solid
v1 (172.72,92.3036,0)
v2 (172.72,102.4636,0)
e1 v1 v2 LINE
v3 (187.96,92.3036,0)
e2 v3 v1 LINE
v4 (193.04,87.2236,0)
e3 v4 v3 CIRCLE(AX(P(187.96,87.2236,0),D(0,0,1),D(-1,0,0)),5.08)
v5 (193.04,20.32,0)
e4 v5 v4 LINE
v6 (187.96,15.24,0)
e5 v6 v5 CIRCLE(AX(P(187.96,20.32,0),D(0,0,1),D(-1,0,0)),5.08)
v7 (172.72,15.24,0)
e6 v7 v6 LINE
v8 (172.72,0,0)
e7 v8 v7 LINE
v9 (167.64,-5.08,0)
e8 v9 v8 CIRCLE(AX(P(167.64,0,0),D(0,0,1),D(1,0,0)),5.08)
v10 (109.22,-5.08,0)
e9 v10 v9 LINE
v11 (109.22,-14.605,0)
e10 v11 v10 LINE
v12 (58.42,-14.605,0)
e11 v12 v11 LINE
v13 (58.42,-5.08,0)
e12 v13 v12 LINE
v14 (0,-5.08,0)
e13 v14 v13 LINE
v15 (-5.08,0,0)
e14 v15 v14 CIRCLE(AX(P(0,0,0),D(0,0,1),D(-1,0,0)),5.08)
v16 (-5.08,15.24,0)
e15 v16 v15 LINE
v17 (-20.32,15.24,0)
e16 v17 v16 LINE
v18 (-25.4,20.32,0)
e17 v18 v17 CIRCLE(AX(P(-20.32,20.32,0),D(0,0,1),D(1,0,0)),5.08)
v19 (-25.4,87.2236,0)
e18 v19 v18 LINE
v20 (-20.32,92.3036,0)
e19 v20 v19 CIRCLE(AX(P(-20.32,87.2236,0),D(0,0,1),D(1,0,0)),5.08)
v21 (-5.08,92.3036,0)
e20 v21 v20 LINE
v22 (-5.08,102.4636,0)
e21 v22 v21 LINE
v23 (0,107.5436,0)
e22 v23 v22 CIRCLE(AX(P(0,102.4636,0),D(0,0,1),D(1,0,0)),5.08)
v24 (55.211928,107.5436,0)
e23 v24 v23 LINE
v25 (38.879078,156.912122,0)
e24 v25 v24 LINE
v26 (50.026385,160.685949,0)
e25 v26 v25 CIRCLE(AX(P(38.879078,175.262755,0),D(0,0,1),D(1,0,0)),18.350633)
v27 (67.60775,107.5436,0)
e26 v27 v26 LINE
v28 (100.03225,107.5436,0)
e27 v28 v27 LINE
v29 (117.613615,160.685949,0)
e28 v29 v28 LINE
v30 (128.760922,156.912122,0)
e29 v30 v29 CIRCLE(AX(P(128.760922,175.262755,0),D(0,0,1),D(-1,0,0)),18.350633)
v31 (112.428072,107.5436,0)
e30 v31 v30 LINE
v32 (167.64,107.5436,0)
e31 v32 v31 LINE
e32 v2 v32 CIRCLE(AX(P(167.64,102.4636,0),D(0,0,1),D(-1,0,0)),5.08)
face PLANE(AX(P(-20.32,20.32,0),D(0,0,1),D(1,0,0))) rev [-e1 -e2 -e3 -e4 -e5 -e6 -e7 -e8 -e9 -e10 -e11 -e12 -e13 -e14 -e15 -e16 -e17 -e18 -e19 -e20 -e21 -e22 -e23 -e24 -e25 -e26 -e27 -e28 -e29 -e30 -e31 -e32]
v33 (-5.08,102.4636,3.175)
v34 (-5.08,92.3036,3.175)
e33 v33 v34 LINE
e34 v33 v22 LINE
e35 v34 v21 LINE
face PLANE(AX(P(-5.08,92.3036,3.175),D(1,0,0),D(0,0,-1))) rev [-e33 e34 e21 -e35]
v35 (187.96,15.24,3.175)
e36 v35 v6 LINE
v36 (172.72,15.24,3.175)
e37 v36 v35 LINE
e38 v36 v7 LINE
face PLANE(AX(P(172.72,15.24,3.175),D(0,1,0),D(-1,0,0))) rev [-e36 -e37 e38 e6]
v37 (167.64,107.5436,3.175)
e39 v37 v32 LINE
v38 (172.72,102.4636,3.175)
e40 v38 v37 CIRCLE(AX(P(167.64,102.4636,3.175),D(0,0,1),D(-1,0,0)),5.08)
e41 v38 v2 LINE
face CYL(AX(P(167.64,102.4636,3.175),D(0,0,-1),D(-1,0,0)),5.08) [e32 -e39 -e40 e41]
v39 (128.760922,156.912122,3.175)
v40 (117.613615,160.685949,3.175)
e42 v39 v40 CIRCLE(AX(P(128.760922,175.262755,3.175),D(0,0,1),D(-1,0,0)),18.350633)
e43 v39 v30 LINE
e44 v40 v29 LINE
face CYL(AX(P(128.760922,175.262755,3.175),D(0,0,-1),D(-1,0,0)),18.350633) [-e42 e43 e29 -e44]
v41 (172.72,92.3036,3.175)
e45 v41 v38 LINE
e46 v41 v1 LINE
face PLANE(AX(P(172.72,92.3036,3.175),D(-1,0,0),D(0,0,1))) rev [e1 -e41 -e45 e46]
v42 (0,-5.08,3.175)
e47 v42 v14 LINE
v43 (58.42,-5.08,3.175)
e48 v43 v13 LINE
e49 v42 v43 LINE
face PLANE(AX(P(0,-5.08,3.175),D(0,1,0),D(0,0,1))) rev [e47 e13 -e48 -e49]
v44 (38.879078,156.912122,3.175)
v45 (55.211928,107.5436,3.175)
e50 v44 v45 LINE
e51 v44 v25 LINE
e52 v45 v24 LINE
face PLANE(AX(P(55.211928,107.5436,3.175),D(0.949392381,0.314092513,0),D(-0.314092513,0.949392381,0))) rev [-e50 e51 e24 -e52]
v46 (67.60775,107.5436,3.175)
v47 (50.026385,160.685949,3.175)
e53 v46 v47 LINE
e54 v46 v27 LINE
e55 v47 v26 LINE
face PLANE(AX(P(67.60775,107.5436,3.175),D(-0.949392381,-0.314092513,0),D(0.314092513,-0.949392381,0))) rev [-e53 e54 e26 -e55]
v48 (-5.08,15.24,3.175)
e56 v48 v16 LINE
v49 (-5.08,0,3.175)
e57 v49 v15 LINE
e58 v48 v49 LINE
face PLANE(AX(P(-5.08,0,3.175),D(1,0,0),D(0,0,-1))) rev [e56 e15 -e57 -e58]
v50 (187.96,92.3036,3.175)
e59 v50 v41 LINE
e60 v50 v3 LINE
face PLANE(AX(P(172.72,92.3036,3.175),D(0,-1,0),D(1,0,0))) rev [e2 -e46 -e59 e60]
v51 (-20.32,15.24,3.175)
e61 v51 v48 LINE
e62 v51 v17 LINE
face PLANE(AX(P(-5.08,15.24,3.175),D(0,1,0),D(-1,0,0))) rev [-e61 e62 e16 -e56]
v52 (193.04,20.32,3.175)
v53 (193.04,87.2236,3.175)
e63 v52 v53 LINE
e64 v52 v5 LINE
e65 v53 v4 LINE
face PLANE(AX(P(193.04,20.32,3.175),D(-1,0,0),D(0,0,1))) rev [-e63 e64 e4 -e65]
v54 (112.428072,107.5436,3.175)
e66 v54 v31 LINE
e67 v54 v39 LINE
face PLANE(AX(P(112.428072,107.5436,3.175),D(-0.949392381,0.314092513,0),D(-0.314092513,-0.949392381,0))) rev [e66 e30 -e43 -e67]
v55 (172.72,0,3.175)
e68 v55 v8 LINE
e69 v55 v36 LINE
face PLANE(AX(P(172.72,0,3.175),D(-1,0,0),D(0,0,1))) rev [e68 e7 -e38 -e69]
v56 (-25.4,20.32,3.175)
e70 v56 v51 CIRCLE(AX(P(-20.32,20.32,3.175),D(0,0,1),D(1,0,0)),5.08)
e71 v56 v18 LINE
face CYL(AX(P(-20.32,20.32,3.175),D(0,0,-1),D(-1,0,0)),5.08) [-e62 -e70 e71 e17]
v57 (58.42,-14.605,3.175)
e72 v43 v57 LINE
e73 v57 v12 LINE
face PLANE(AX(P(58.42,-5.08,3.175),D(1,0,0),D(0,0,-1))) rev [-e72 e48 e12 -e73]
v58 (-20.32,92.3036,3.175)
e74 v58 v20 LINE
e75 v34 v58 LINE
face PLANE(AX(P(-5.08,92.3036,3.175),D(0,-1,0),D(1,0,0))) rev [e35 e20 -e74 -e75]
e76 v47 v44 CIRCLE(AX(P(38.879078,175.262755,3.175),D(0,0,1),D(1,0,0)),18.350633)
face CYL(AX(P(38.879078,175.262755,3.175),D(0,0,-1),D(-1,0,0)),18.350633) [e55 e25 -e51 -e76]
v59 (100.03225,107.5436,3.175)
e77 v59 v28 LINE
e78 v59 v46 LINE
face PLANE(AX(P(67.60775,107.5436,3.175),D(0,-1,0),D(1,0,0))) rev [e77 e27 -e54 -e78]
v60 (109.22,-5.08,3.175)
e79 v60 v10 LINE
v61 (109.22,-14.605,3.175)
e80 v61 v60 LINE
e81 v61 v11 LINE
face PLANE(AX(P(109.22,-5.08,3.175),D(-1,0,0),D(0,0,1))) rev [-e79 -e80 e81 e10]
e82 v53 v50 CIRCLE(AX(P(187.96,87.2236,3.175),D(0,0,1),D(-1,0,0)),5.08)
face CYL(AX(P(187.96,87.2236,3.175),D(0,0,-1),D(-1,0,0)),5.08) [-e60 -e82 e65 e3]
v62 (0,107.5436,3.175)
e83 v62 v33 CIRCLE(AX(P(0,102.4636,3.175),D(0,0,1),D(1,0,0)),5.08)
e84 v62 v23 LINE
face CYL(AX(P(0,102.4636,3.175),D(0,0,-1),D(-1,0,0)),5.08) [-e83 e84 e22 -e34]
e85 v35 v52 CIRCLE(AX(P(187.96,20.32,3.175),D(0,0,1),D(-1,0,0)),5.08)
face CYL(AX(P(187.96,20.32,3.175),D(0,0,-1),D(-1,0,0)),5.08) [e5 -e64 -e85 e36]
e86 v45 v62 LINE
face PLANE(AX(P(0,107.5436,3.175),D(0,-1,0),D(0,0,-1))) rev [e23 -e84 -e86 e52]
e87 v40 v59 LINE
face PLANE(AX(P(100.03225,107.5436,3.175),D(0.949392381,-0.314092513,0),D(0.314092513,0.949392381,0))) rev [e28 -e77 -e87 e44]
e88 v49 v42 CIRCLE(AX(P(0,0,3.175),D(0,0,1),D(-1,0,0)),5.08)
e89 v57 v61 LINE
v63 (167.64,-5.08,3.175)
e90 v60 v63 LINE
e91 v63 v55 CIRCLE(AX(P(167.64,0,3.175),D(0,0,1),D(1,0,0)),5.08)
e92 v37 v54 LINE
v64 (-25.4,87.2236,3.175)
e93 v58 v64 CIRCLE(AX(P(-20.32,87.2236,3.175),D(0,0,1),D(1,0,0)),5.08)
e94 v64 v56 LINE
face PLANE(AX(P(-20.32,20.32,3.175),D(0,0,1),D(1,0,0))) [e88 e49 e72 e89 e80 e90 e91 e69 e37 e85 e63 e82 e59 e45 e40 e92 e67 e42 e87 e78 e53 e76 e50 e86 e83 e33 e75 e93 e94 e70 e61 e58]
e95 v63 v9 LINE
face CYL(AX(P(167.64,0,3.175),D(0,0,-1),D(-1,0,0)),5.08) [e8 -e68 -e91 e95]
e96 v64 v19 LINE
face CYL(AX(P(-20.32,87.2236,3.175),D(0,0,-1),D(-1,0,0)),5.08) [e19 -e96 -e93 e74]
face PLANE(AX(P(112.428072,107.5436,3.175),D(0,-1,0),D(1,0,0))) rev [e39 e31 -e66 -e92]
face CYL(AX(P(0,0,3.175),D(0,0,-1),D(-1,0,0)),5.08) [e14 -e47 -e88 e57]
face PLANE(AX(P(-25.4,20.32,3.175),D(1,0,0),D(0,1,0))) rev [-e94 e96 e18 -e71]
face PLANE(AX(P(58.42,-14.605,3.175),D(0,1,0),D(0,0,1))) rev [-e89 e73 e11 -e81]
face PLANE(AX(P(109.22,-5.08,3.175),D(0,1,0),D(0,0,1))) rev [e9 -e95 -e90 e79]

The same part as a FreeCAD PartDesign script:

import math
import FreeCAD as App
import Part
import Sketcher
Q = App.Units.Quantity

doc = App.newDocument("Part")
body = doc.addObject("PartDesign::Body", "Body")

# Sketch on XY plane
sketch1 = body.newObject("Sketcher::SketchObject", "Sketch")
sketch1.AttachmentSupport = (doc.getObject("XY_Plane"), [""])
sketch1.MapMode = "FlatFace"
sketch1.addGeometry(Part.LineSegment(App.Vector(0, -5, 0), App.Vector(58, -5, 0)), False)
sketch1.addGeometry(Part.LineSegment(App.Vector(58, -5, 0), App.Vector(58, -15, 0)), False)
sketch1.addGeometry(Part.LineSegment(App.Vector(58, -15, 0), App.Vector(109, -15, 0)), False)
sketch1.addGeometry(Part.LineSegment(App.Vector(109, -15, 0), App.Vector(109, -5, 0)), False)
sketch1.addGeometry(Part.LineSegment(App.Vector(109, -5, 0), App.Vector(168, -5, 0)), False)
sketch1.addGeometry(Part.ArcOfCircle(Part.Circle(App.Vector(168, 0, 0), App.Vector(0, 0, 1), 5), math.radians(-90), math.radians(0)), False)
sketch1.addGeometry(Part.LineSegment(App.Vector(173, 0, 0), App.Vector(173, 15, 0)), False)
sketch1.addGeometry(Part.LineSegment(App.Vector(173, 15, 0), App.Vector(188, 15, 0)), False)
sketch1.addGeometry(Part.ArcOfCircle(Part.Circle(App.Vector(188, 20, 0), App.Vector(0, 0, 1), 5), math.radians(-90), math.radians(0)), False)
sketch1.addGeometry(Part.LineSegment(App.Vector(193, 20, 0), App.Vector(193, 87, 0)), False)
sketch1.addGeometry(Part.ArcOfCircle(Part.Circle(App.Vector(188, 87, 0), App.Vector(0, 0, 1), 5), math.radians(0), math.radians(90)), False)
sketch1.addGeometry(Part.LineSegment(App.Vector(188, 92, 0), App.Vector(173, 92, 0)), False)
sketch1.addGeometry(Part.LineSegment(App.Vector(173, 92, 0), App.Vector(173, 102, 0)), False)
sketch1.addGeometry(Part.ArcOfCircle(Part.Circle(App.Vector(168, 102, 0), App.Vector(0, 0, 1), 5), math.radians(0), math.radians(90)), False)
sketch1.addGeometry(Part.LineSegment(App.Vector(168, 108, 0), App.Vector(112, 108, 0)), False)
sketch1.addGeometry(Part.LineSegment(App.Vector(112, 108, 0), App.Vector(129, 157, 0)), False)
sketch1.addGeometry(Part.ArcOfCircle(Part.Circle(App.Vector(129, 175, 0), App.Vector(0, 0, 1), 18), math.radians(-90), math.radians(233)), False)
sketch1.addGeometry(Part.LineSegment(App.Vector(118, 161, 0), App.Vector(100, 108, 0)), False)
sketch1.addGeometry(Part.LineSegment(App.Vector(100, 108, 0), App.Vector(68, 108, 0)), False)
sketch1.addGeometry(Part.LineSegment(App.Vector(68, 108, 0), App.Vector(50, 161, 0)), False)
sketch1.addGeometry(Part.ArcOfCircle(Part.Circle(App.Vector(39, 175, 0), App.Vector(0, 0, 1), 18), math.radians(-53), math.radians(270)), False)
sketch1.addGeometry(Part.LineSegment(App.Vector(39, 157, 0), App.Vector(55, 108, 0)), False)
sketch1.addGeometry(Part.LineSegment(App.Vector(55, 108, 0), App.Vector(0, 108, 0)), False)
sketch1.addGeometry(Part.ArcOfCircle(Part.Circle(App.Vector(0, 102, 0), App.Vector(0, 0, 1), 5), math.radians(90), math.radians(180)), False)
sketch1.addGeometry(Part.LineSegment(App.Vector(-5, 102, 0), App.Vector(-5, 92, 0)), False)
sketch1.addGeometry(Part.LineSegment(App.Vector(-5, 92, 0), App.Vector(-20, 92, 0)), False)
sketch1.addGeometry(Part.ArcOfCircle(Part.Circle(App.Vector(-20, 87, 0), App.Vector(0, 0, 1), 5), math.radians(90), math.radians(180)), False)
sketch1.addGeometry(Part.LineSegment(App.Vector(-25, 87, 0), App.Vector(-25, 20, 0)), False)
sketch1.addGeometry(Part.ArcOfCircle(Part.Circle(App.Vector(-20, 20, 0), App.Vector(0, 0, 1), 5), math.radians(-180), math.radians(-90)), False)
sketch1.addGeometry(Part.LineSegment(App.Vector(-20, 15, 0), App.Vector(-5, 15, 0)), False)
sketch1.addGeometry(Part.LineSegment(App.Vector(-5, 15, 0), App.Vector(-5, 0, 0)), False)
sketch1.addGeometry(Part.ArcOfCircle(Part.Circle(App.Vector(0, 0, 0), App.Vector(0, 0, 1), 5), math.radians(-180), math.radians(-90)), False)
sketch1.addConstraint(Sketcher.Constraint("Coincident", 0, 2, 1, 1))
sketch1.addConstraint(Sketcher.Constraint("Coincident", 1, 2, 2, 1))
sketch1.addConstraint(Sketcher.Constraint("Coincident", 2, 2, 3, 1))
sketch1.addConstraint(Sketcher.Constraint("Coincident", 3, 2, 4, 1))
sketch1.addConstraint(Sketcher.Constraint("Tangent", 4, 2, 5, 1))
sketch1.addConstraint(Sketcher.Constraint("Tangent", 5, 2, 6, 1))
sketch1.addConstraint(Sketcher.Constraint("Coincident", 6, 2, 7, 1))
sketch1.addConstraint(Sketcher.Constraint("Tangent", 7, 2, 8, 1))
sketch1.addConstraint(Sketcher.Constraint("Tangent", 8, 2, 9, 1))
sketch1.addConstraint(Sketcher.Constraint("Tangent", 9, 2, 10, 1))
sketch1.addConstraint(Sketcher.Constraint("Tangent", 10, 2, 11, 1))
sketch1.addConstraint(Sketcher.Constraint("Coincident", 11, 2, 12, 1))
sketch1.addConstraint(Sketcher.Constraint("Tangent", 12, 2, 13, 1))
sketch1.addConstraint(Sketcher.Constraint("Tangent", 13, 2, 14, 1))
sketch1.addConstraint(Sketcher.Constraint("Coincident", 14, 2, 15, 1))
sketch1.addConstraint(Sketcher.Constraint("Coincident", 15, 2, 16, 1))
sketch1.addConstraint(Sketcher.Constraint("Coincident", 16, 2, 17, 1))
sketch1.addConstraint(Sketcher.Constraint("Coincident", 17, 2, 18, 1))
sketch1.addConstraint(Sketcher.Constraint("Coincident", 18, 2, 19, 1))
sketch1.addConstraint(Sketcher.Constraint("Coincident", 19, 2, 20, 1))
sketch1.addConstraint(Sketcher.Constraint("Coincident", 20, 2, 21, 1))
sketch1.addConstraint(Sketcher.Constraint("Coincident", 21, 2, 22, 1))
sketch1.addConstraint(Sketcher.Constraint("Tangent", 22, 2, 23, 1))
sketch1.addConstraint(Sketcher.Constraint("Tangent", 23, 2, 24, 1))
sketch1.addConstraint(Sketcher.Constraint("Coincident", 24, 2, 25, 1))
sketch1.addConstraint(Sketcher.Constraint("Tangent", 25, 2, 26, 1))
sketch1.addConstraint(Sketcher.Constraint("Tangent", 26, 2, 27, 1))
sketch1.addConstraint(Sketcher.Constraint("Tangent", 27, 2, 28, 1))
sketch1.addConstraint(Sketcher.Constraint("Tangent", 28, 2, 29, 1))
sketch1.addConstraint(Sketcher.Constraint("Coincident", 29, 2, 30, 1))
sketch1.addConstraint(Sketcher.Constraint("Tangent", 30, 2, 31, 1))
sketch1.addConstraint(Sketcher.Constraint("Tangent", 31, 2, 0, 1))
sketch1.addConstraint(Sketcher.Constraint("Horizontal", 0))
sketch1.addConstraint(Sketcher.Constraint("Vertical", 1))
sketch1.addConstraint(Sketcher.Constraint("Horizontal", 2))
sketch1.addConstraint(Sketcher.Constraint("Vertical", 3))
sketch1.addConstraint(Sketcher.Constraint("Horizontal", 4))
sketch1.addConstraint(Sketcher.Constraint("Vertical", 6))
sketch1.addConstraint(Sketcher.Constraint("Horizontal", 7))
sketch1.addConstraint(Sketcher.Constraint("Vertical", 9))
sketch1.addConstraint(Sketcher.Constraint("Horizontal", 11))
sketch1.addConstraint(Sketcher.Constraint("Vertical", 12))
sketch1.addConstraint(Sketcher.Constraint("Horizontal", 14))
sketch1.addConstraint(Sketcher.Constraint("Horizontal", 18))
sketch1.addConstraint(Sketcher.Constraint("Horizontal", 22))
sketch1.addConstraint(Sketcher.Constraint("Vertical", 24))
sketch1.addConstraint(Sketcher.Constraint("Horizontal", 25))
sketch1.addConstraint(Sketcher.Constraint("Vertical", 27))
sketch1.addConstraint(Sketcher.Constraint("Horizontal", 29))
sketch1.addConstraint(Sketcher.Constraint("Vertical", 30))
sketch1.addConstraint(Sketcher.Constraint("Coincident", 31, 3, -1, 1))
sketch1.addConstraint(Sketcher.Constraint("Equal", 5, 8))
sketch1.addConstraint(Sketcher.Constraint("Equal", 8, 10))
sketch1.addConstraint(Sketcher.Constraint("Equal", 10, 13))
sketch1.addConstraint(Sketcher.Constraint("Equal", 16, 20))
sketch1.addConstraint(Sketcher.Constraint("Equal", 13, 23))
sketch1.addConstraint(Sketcher.Constraint("Equal", 23, 26))
sketch1.addConstraint(Sketcher.Constraint("Equal", 26, 28))
sketch1.addConstraint(Sketcher.Constraint("Equal", 28, 31))
sketch1.addConstraint(Sketcher.Constraint("PointOnObject", 5, 3, -1))
sketch1.addConstraint(Sketcher.Constraint("PointOnObject", 23, 3, -2))
sketch1.addConstraint(Sketcher.Constraint("Parallel", 15, 17))
sketch1.addConstraint(Sketcher.Constraint("Parallel", 19, 21))
sketch1.addConstraint(Sketcher.Constraint("Horizontal", 16, 3, 20, 3))
sketch1.addConstraint(Sketcher.Constraint("Horizontal", 13, 3, 23, 3))
sketch1.addConstraint(Sketcher.Constraint("Horizontal", 10, 3, 26, 3))
sketch1.addConstraint(Sketcher.Constraint("Horizontal", 8, 3, 28, 3))
sketch1.addConstraint(Sketcher.Constraint("Horizontal", 14, 2, 17, 2))
sketch1.addConstraint(Sketcher.Constraint("Horizontal", 16, 2, 19, 2))
sketch1.addConstraint(Sketcher.Constraint("Vertical", 5, 3, 13, 3))
sketch1.addConstraint(Sketcher.Constraint("Vertical", 16, 3, 15, 2))
sketch1.addConstraint(Sketcher.Constraint("Equal", 0, 4))
sketch1.addConstraint(Sketcher.Constraint("Equal", 14, 22))
sketch1.addConstraint(Sketcher.Constraint("Equal", 11, 25))
sketch1.addConstraint(Sketcher.Constraint("Equal", 29, 6))
sketch1.addConstraint(Sketcher.Constraint("Equal", 17, 19))
sketch1.addConstraint(Sketcher.Constraint("Radius", 5, Q("0.2 in")))
sketch1.addConstraint(Sketcher.Constraint("DistanceX", 2, 1, 2, 2, Q("2 in")))
sketch1.addConstraint(Sketcher.Constraint("DistanceX", 0, 1, 0, 2, Q("2.3 in")))
sketch1.addConstraint(Sketcher.Constraint("DistanceX", 7, 1, 7, 2, Q("0.6 in")))
sketch1.addConstraint(Sketcher.Constraint("DistanceY", 12, 1, 12, 2, Q("0.4 in")))
sketch1.addConstraint(Sketcher.Constraint("DistanceY", 1, 2, 1, 1, Q("0.375 in")))
sketch1.addConstraint(Sketcher.Constraint("DistanceY", 9, 1, 9, 2, Q("2.634 in")))
sketch1.addConstraint(Sketcher.Constraint("DistanceX", 18, 2, 18, 1, 32.4245))
sketch1.addConstraint(Sketcher.Constraint("Radius", 16, 18.350633))
sketch1.addConstraint(Sketcher.Constraint("DistanceX", 14, 2, 14, 1, 55.211928))
sketch1.addConstraint(Sketcher.Constraint("DistanceX", -1, 1, 16, 3, 128.760922))
sketch1.addConstraint(Sketcher.Constraint("DistanceX", -1, 1, 20, 3, 38.879078))
sketch1.addConstraint(Sketcher.Constraint("DistanceY", -1, 1, 15, 2, 156.912122))
pad1 = body.newObject("PartDesign::Pad", "Pad")
pad1.Profile = sketch1
pad1.Length = Q("0.125 in")

doc.recompute()
